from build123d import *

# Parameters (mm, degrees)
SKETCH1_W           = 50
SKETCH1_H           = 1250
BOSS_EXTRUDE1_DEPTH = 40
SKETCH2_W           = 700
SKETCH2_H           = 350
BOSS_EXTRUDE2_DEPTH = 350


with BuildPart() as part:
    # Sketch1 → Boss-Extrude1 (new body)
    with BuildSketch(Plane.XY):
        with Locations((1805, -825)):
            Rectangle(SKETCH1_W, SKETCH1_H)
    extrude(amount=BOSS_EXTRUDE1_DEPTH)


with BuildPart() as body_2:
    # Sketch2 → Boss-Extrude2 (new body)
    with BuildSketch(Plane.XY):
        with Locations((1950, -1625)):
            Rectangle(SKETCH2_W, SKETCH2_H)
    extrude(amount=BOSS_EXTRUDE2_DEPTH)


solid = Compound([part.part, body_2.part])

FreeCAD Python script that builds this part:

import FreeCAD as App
import Part
import Sketcher


def add_polygon(sketch, points):
    """Adds a closed chain of lines whose ends are joined by coincident constraints."""
    first, n = sketch.GeometryCount, len(points)
    for a, b in zip(points, points[1:] + points[:1]):
        sketch.addGeometry(Part.LineSegment(App.Vector(*a, 0), App.Vector(*b, 0)), False)
    for i in range(n):
        sketch.addConstraint(Sketcher.Constraint("Coincident", first + i, 2, first + (i + 1) % n, 1))

doc = App.newDocument("Part")
body = doc.addObject("PartDesign::Body", "Body")

# Sketch on XY plane
sketch1 = body.newObject("Sketcher::SketchObject", "Sketch")
sketch1.AttachmentSupport = (doc.getObject("XY_Plane"), [""])
sketch1.MapMode = "FlatFace"
add_polygon(sketch1, [(1780, -200), (1780, -1450), (1830, -1450), (1830, -200)])  # lines 0-3
sketch1.addConstraint([
    Sketcher.Constraint("Vertical", 0),
    Sketcher.Constraint("Horizontal", 1),
    Sketcher.Constraint("Vertical", 2),
    Sketcher.Constraint("Horizontal", 3),
    Sketcher.Constraint("DistanceX", 1, 1, 1, 2, 50.0),
    Sketcher.Constraint("DistanceY", 0, 2, 0, 1, 1250.0),
    Sketcher.Constraint("DistanceX", -1, 1, 0, 2, 1780.0),
    Sketcher.Constraint("DistanceY", 0, 2, -1, 1, 1450.0),
])
pad1 = body.newObject("PartDesign::Pad", "Pad")
pad1.Profile = sketch1
pad1.Length = 40
body2 = doc.addObject("PartDesign::Body", "Body001")

# Sketch on XY plane
sketch2 = body2.newObject("Sketcher::SketchObject", "Sketch001")
sketch2.AttachmentSupport = (doc.getObject("XY_Plane001"), [""])
sketch2.MapMode = "FlatFace"
add_polygon(sketch2, [(1600, -1450), (1600, -1800), (2300, -1800), (2300, -1450)])  # lines 0-3
sketch2.addConstraint([
    Sketcher.Constraint("Vertical", 0),
    Sketcher.Constraint("Horizontal", 1),
    Sketcher.Constraint("Vertical", 2),
    Sketcher.Constraint("Horizontal", 3),
    Sketcher.Constraint("DistanceX", 1, 1, 1, 2, 700.0),
    Sketcher.Constraint("DistanceY", 0, 2, 0, 1, 350.0),
    Sketcher.Constraint("DistanceX", -1, 1, 0, 2, 1600.0),
    Sketcher.Constraint("DistanceY", 0, 2, -1, 1, 1800.0),
])
pad2 = body2.newObject("PartDesign::Pad", "Pad001")
pad2.Profile = sketch2
pad2.Length = 350

doc.recompute()
